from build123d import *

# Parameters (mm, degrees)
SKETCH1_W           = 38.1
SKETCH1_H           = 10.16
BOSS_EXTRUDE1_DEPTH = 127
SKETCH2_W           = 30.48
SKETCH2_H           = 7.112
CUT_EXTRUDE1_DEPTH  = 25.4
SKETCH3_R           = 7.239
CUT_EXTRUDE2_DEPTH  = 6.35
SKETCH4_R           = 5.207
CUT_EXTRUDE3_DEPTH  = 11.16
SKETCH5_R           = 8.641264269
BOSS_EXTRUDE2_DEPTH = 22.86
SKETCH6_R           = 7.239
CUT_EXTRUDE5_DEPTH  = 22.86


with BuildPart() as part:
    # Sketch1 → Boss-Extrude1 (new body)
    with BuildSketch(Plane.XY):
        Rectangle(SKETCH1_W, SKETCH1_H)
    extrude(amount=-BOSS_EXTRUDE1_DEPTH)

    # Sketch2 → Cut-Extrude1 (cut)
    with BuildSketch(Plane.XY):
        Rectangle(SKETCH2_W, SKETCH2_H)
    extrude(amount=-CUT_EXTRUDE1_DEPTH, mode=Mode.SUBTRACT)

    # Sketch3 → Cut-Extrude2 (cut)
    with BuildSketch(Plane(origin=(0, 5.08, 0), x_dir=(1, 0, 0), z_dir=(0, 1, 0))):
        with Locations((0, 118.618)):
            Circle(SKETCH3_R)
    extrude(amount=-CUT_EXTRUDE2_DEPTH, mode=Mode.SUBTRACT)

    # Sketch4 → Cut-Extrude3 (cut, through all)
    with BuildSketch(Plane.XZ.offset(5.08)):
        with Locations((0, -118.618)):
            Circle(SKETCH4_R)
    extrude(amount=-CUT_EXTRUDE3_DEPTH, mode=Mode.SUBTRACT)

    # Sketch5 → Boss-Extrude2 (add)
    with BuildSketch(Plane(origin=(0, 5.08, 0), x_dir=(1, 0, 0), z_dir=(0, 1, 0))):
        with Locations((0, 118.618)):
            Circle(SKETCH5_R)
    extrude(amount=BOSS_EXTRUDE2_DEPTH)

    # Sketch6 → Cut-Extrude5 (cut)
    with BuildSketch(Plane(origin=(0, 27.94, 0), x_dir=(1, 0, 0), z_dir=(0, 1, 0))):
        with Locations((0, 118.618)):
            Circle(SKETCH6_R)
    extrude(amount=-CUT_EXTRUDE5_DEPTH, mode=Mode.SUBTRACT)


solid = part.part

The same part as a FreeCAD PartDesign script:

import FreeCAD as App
import Part
import Sketcher
from FreeCAD import Vector
Q = App.Units.Quantity

doc = App.newDocument("Part")
params = doc.addObject("Spreadsheet::Sheet", "Params")
for row, (alias, value) in enumerate([
    ("sketch1_width", "1.5 in"),
    ("sketch1_height", "0.4 in"),
    ("pad1_length", "5 in"),
    ("sketch2_width", "1.2 in"),
    ("sketch2_height", "0.28 in"),
    ("pocket1_length", "1 in"),
    ("sketch3_diameter", "0.57 in"),
    ("pocket2_length", "0.25 in"),
    ("sketch4_diameter", "0.41 in"),
    ("pad2_length", "0.9 in"),
    ("sketch6_diameter", "0.57 in"),
    ("pocket4_length", "0.9 in"),
], start=1):
    params.set(f"A{row}", alias)
    params.set(f"B{row}", "=" + value)
    params.setAlias(f"B{row}", alias)

body = doc.addObject("PartDesign::Body", "Body")

# Sketch on XY plane
sketch1 = body.newObject("Sketcher::SketchObject", "Sketch")
sketch1.AttachmentSupport = (doc.getObject("XY_Plane"), [""])
sketch1.MapMode = "FlatFace"
sketch1.addGeometry(Part.LineSegment(Vector(-19, 5, 0), Vector(-19, -5, 0)), False)
sketch1.addGeometry(Part.LineSegment(Vector(-19, -5, 0), Vector(19, -5, 0)), False)
sketch1.addGeometry(Part.LineSegment(Vector(19, -5, 0), Vector(19, 5, 0)), False)
sketch1.addGeometry(Part.LineSegment(Vector(19, 5, 0), Vector(-19, 5, 0)), False)
sketch1.addConstraint(Sketcher.Constraint("Coincident", 0, 2, 1, 1))
sketch1.addConstraint(Sketcher.Constraint("Coincident", 1, 2, 2, 1))
sketch1.addConstraint(Sketcher.Constraint("Coincident", 2, 2, 3, 1))
sketch1.addConstraint(Sketcher.Constraint("Coincident", 3, 2, 0, 1))
sketch1.addConstraint(Sketcher.Constraint("Vertical", 0))
sketch1.addConstraint(Sketcher.Constraint("Horizontal", 1))
sketch1.addConstraint(Sketcher.Constraint("Vertical", 2))
sketch1.addConstraint(Sketcher.Constraint("Horizontal", 3))
sketch1.addConstraint(Sketcher.Constraint("Symmetric", 0, 2, 2, 2, -1, 1))
sketch1.addConstraint(Sketcher.Constraint("DistanceX", 1, 1, 1, 2, Q("1.5 in")))
sketch1.addConstraint(Sketcher.Constraint("DistanceY", 0, 2, 0, 1, Q("0.4 in")))
sketch1.setExpression("Constraints[9]", "Params.sketch1_width")
sketch1.setExpression("Constraints[10]", "Params.sketch1_height")
pad1 = body.newObject("PartDesign::Pad", "Pad")
pad1.Profile = sketch1
pad1.setExpression("Length", "Params.pad1_length")
pad1.Reversed = True

# Sketch on XY plane
sketch2 = body.newObject("Sketcher::SketchObject", "Sketch001")
sketch2.AttachmentSupport = (doc.getObject("XY_Plane"), [""])
sketch2.MapMode = "FlatFace"
sketch2.addGeometry(Part.LineSegment(Vector(-15, 4, 0), Vector(-15, -4, 0)), False)
sketch2.addGeometry(Part.LineSegment(Vector(-15, -4, 0), Vector(15, -4, 0)), False)
sketch2.addGeometry(Part.LineSegment(Vector(15, -4, 0), Vector(15, 4, 0)), False)
sketch2.addGeometry(Part.LineSegment(Vector(15, 4, 0), Vector(-15, 4, 0)), False)
sketch2.addConstraint(Sketcher.Constraint("Coincident", 0, 2, 1, 1))
sketch2.addConstraint(Sketcher.Constraint("Coincident", 1, 2, 2, 1))
sketch2.addConstraint(Sketcher.Constraint("Coincident", 2, 2, 3, 1))
sketch2.addConstraint(Sketcher.Constraint("Coincident", 3, 2, 0, 1))
sketch2.addConstraint(Sketcher.Constraint("Vertical", 0))
sketch2.addConstraint(Sketcher.Constraint("Horizontal", 1))
sketch2.addConstraint(Sketcher.Constraint("Vertical", 2))
sketch2.addConstraint(Sketcher.Constraint("Horizontal", 3))
sketch2.addConstraint(Sketcher.Constraint("Symmetric", 0, 2, 2, 2, -1, 1))
sketch2.addConstraint(Sketcher.Constraint("DistanceX", 1, 1, 1, 2, Q("1.2 in")))
sketch2.addConstraint(Sketcher.Constraint("DistanceY", 0, 2, 0, 1, Q("0.28 in")))
sketch2.setExpression("Constraints[9]", "Params.sketch2_width")
sketch2.setExpression("Constraints[10]", "Params.sketch2_height")
pocket1 = body.newObject("PartDesign::Pocket", "Pocket")
pocket1.Profile = sketch2
pocket1.setExpression("Length", "Params.pocket1_length")

# Sketch on XZ plane
sketch3 = body.newObject("Sketcher::SketchObject", "Sketch002")
sketch3.AttachmentSupport = (doc.getObject("XZ_Plane"), [""])
sketch3.MapMode = "FlatFace"
sketch3.AttachmentOffset = App.Placement(Vector(0, 0, -0.2 * 25.4), App.Rotation())
sketch3.addGeometry(Part.Circle(Vector(0, -119, 0), Vector(0, 0, 1), 7), False)
sketch3.addConstraint(Sketcher.Constraint("PointOnObject", 0, 3, -2))
sketch3.addConstraint(Sketcher.Constraint("Diameter", 0, Q("0.57 in")))
sketch3.addConstraint(Sketcher.Constraint("DistanceY", 0, 3, -1, 1, Q("4.67 in")))
sketch3.setExpression("Constraints[1]", "Params.sketch3_diameter")
pocket2 = body.newObject("PartDesign::Pocket", "Pocket001")
pocket2.Profile = sketch3
pocket2.setExpression("Length", "Params.pocket2_length")
pocket2.Reversed = True

# Sketch on XZ plane
sketch4 = body.newObject("Sketcher::SketchObject", "Sketch003")
sketch4.AttachmentSupport = (doc.getObject("XZ_Plane"), [""])
sketch4.MapMode = "FlatFace"
sketch4.AttachmentOffset = App.Placement(Vector(0, 0, 0.2 * 25.4), App.Rotation())
sketch4.addGeometry(Part.Circle(Vector(0, -119, 0), Vector(0, 0, 1), 5), False)
sketch4.addConstraint(Sketcher.Constraint("PointOnObject", 0, 3, -2))
sketch4.addConstraint(Sketcher.Constraint("Diameter", 0, Q("0.41 in")))
sketch4.addConstraint(Sketcher.Constraint("DistanceY", 0, 3, -1, 1, Q("4.67 in")))
sketch4.setExpression("Constraints[1]", "Params.sketch4_diameter")
pocket3 = body.newObject("PartDesign::Pocket", "Pocket002")
pocket3.Profile = sketch4
pocket3.Type = "ThroughAll"

# Sketch on XZ plane
sketch5 = body.newObject("Sketcher::SketchObject", "Sketch004")
sketch5.AttachmentSupport = (doc.getObject("XZ_Plane"), [""])
sketch5.MapMode = "FlatFace"
sketch5.AttachmentOffset = App.Placement(Vector(0, 0, -0.2 * 25.4), App.Rotation())
sketch5.addGeometry(Part.Circle(Vector(0, -119, 0), Vector(0, 0, 1), 9), False)
sketch5.addConstraint(Sketcher.Constraint("PointOnObject", 0, 3, -2))
sketch5.addConstraint(Sketcher.Constraint("DistanceY", 0, 3, -1, 1, Q("4.67 in")))
sketch5.addConstraint(Sketcher.Constraint("Diameter", 0, 17.282529))
pad2 = body.newObject("PartDesign::Pad", "Pad001")
pad2.Profile = sketch5
pad2.setExpression("Length", "Params.pad2_length")
pad2.Reversed = True

# Sketch on XZ plane
sketch6 = body.newObject("Sketcher::SketchObject", "Sketch005")
sketch6.AttachmentSupport = (doc.getObject("XZ_Plane"), [""])
sketch6.MapMode = "FlatFace"
sketch6.AttachmentOffset = App.Placement(Vector(0, 0, -1.1 * 25.4), App.Rotation())
sketch6.addGeometry(Part.Circle(Vector(0, -119, 0), Vector(0, 0, 1), 7), False)
sketch6.addConstraint(Sketcher.Constraint("PointOnObject", 0, 3, -2))
sketch6.addConstraint(Sketcher.Constraint("Diameter", 0, Q("0.57 in")))
sketch6.addConstraint(Sketcher.Constraint("DistanceY", 0, 3, -1, 1, Q("4.67 in")))
sketch6.setExpression("Constraints[1]", "Params.sketch6_diameter")
pocket4 = body.newObject("PartDesign::Pocket", "Pocket003")
pocket4.Profile = sketch6
pocket4.setExpression("Length", "Params.pocket4_length")
pocket4.Reversed = True

doc.recompute()
